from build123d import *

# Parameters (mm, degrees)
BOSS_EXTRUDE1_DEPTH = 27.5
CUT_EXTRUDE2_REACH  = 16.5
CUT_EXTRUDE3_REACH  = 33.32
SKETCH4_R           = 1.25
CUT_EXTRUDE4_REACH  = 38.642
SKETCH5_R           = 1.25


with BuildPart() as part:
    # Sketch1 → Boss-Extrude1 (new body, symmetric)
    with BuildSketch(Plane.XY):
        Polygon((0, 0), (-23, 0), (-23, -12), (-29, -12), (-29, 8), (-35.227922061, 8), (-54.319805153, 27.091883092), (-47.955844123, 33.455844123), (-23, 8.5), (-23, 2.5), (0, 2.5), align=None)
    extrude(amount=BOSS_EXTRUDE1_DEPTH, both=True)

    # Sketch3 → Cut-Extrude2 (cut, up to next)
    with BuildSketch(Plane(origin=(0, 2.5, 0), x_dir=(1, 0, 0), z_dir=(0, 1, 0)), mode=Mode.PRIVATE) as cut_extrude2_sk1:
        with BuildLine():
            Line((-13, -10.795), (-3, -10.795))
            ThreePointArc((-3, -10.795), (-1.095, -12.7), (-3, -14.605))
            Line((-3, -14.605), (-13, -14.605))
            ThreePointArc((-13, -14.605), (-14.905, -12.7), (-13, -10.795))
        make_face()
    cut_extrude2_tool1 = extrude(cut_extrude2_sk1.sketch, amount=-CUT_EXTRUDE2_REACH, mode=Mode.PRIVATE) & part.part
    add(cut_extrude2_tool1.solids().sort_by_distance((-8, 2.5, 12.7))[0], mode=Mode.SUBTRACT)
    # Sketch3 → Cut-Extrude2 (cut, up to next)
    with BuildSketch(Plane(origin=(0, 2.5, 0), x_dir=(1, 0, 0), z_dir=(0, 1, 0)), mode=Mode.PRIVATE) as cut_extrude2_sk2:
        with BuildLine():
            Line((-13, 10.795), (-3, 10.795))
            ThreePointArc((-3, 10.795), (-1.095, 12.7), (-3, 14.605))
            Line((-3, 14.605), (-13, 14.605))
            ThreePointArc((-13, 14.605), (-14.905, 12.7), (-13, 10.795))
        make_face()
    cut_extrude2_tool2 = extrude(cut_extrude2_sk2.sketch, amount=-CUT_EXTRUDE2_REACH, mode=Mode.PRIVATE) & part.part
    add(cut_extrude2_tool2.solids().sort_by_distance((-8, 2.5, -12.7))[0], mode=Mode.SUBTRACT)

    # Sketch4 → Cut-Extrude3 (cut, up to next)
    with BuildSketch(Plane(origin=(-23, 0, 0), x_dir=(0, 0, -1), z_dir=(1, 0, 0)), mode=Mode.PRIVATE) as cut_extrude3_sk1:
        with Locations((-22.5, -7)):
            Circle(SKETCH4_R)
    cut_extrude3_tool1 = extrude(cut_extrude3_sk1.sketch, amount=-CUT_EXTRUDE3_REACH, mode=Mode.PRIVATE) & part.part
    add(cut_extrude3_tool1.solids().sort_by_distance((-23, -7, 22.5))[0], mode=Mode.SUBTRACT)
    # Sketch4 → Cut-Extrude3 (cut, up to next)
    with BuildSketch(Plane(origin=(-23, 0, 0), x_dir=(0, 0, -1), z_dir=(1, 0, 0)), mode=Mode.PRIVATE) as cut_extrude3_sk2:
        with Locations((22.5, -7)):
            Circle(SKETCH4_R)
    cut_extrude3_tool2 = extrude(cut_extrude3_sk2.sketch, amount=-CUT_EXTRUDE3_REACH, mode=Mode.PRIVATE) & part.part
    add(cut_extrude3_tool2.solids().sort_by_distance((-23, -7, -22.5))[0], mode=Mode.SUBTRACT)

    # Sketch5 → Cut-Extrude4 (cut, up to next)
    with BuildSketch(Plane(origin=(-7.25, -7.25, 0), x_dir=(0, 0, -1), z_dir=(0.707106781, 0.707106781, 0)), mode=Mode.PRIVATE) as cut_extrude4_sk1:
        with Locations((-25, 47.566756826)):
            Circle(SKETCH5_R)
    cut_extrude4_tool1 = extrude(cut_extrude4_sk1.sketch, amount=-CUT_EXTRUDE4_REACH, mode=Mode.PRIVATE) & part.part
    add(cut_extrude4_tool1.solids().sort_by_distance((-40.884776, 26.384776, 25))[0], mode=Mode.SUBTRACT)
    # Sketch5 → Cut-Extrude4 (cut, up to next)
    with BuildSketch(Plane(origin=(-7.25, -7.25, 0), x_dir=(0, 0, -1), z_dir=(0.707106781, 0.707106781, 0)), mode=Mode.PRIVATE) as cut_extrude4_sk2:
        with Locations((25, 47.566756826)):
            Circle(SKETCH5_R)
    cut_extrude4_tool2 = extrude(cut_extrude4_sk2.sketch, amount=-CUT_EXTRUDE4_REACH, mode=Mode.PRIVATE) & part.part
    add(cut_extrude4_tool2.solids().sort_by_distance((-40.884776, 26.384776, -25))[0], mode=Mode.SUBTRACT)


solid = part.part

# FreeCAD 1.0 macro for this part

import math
import FreeCAD as App
import Part
import Sketcher
Q = App.Units.Quantity

doc = App.newDocument("Part")
params = doc.addObject("Spreadsheet::Sheet", "Params")
for row, (alias, value) in enumerate([
    ("sketch1_width", "23 mm"),
    ("sketch1_width2", "6 mm"),
    ("sketch1_height", "20 mm"),
    ("sketch1_height2", "12 mm"),
    ("sketch1_length", "9 mm"),
    ("pad1_length", "55 mm"),
    ("sketch2_width", "10 mm"),
    ("sketch3_width", "10 mm"),
    ("sketch4_diameter", "2.5 mm"),
    ("sketch5_diameter", "2.5 mm"),
    ("sketch6_diameter", "2.5 mm"),
    ("sketch7_diameter", "2.5 mm"),
], start=1):
    params.set(f"A{row}", alias)
    params.set(f"B{row}", "=" + value)
    params.setAlias(f"B{row}", alias)

body = doc.addObject("PartDesign::Body", "Body")

# Sketch on XY plane
sketch1 = body.newObject("Sketcher::SketchObject", "Sketch")
sketch1.AttachmentSupport = (doc.getObject("XY_Plane"), [""])
sketch1.MapMode = "FlatFace"
sketch1.addGeometry([
    Part.LineSegment(App.Vector(-23, 0, 0), App.Vector(0, 0, 0)),  # 0
    Part.LineSegment(App.Vector(0, 0, 0), App.Vector(0, 2.5, 0)),  # 1
    Part.LineSegment(App.Vector(0, 2.5, 0), App.Vector(-23, 2.5, 0)),  # 2
    Part.LineSegment(App.Vector(-23, 2.5, 0), App.Vector(-23, 8.5, 0)),  # 3
    Part.LineSegment(App.Vector(-23, 8.5, 0), App.Vector(-48, 33.5, 0)),  # 4
    Part.LineSegment(App.Vector(-48, 33.5, 0), App.Vector(-54.3, 27.1, 0)),  # 5
    Part.LineSegment(App.Vector(-54.3, 27.1, 0), App.Vector(-35.2, 8, 0)),  # 6
    Part.LineSegment(App.Vector(-35.2, 8, 0), App.Vector(-29, 8, 0)),  # 7
    Part.LineSegment(App.Vector(-29, 8, 0), App.Vector(-29, -12, 0)),  # 8
    Part.LineSegment(App.Vector(-29, -12, 0), App.Vector(-23, -12, 0)),  # 9
    Part.LineSegment(App.Vector(-23, -12, 0), App.Vector(-23, 0, 0)),  # 10
], False)
sketch1.addConstraint([
    Sketcher.Constraint("Coincident", 0, 2, 1, 1),
    Sketcher.Constraint("Coincident", 1, 2, 2, 1),
    Sketcher.Constraint("Coincident", 2, 2, 3, 1),
    Sketcher.Constraint("Coincident", 3, 2, 4, 1),
    Sketcher.Constraint("Coincident", 4, 2, 5, 1),
    Sketcher.Constraint("Coincident", 5, 2, 6, 1),
    Sketcher.Constraint("Coincident", 6, 2, 7, 1),
    Sketcher.Constraint("Coincident", 7, 2, 8, 1),
    Sketcher.Constraint("Coincident", 8, 2, 9, 1),
    Sketcher.Constraint("Coincident", 9, 2, 10, 1),
    Sketcher.Constraint("Coincident", 10, 2, 0, 1),
    Sketcher.Constraint("Horizontal", 0),
    Sketcher.Constraint("Vertical", 1),
    Sketcher.Constraint("Horizontal", 2),
    Sketcher.Constraint("Vertical", 3),
    Sketcher.Constraint("Horizontal", 7),
    Sketcher.Constraint("Vertical", 8),
    Sketcher.Constraint("Horizontal", 9),
    Sketcher.Constraint("Vertical", 10),
    Sketcher.Constraint("Coincident", 0, 2, -1, 1),
    Sketcher.Constraint("Perpendicular", 4, 5),
    Sketcher.Constraint("Perpendicular", 5, 6),
    Sketcher.Constraint("Vertical", 3, 2, 9, 2),
    Sketcher.Constraint("Equal", 9, 3),
    Sketcher.Constraint("DistanceX", 0, 1, 0, 2, 23.0),
    Sketcher.Constraint("DistanceX", 9, 1, 9, 2, 6.0),
    Sketcher.Constraint("DistanceY", 8, 2, 8, 1, 20.0),
    Sketcher.Constraint("DistanceY", 10, 1, 10, 2, 12.0),
    Sketcher.Constraint("Angle", 4, Q("135 deg")),
    Sketcher.Constraint("Distance", 5, 9.0),
    Sketcher.Constraint("Distance", 6, 27.0),
    Sketcher.Constraint("DistanceY", 1, 1, 1, 2, 2.5),
])
sketch1.setExpression("Constraints[24]", "Params.sketch1_width")
sketch1.setExpression("Constraints[25]", "Params.sketch1_width2")
sketch1.setExpression("Constraints[26]", "Params.sketch1_height")
sketch1.setExpression("Constraints[27]", "Params.sketch1_height2")
sketch1.setExpression("Constraints[29]", "Params.sketch1_length")
pad1 = body.newObject("PartDesign::Pad", "Pad")
pad1.Profile = sketch1
pad1.setExpression("Length", "Params.pad1_length")
pad1.Midplane = True

# Sketch on XZ plane
sketch2 = body.newObject("Sketcher::SketchObject", "Sketch001")
sketch2.AttachmentSupport = (doc.getObject("XZ_Plane"), [""])
sketch2.MapMode = "FlatFace"
sketch2.AttachmentOffset = App.Placement(App.Vector(0, 0, -2.5), App.Rotation())
sketch2.addGeometry([
    Part.LineSegment(App.Vector(-3, 10.8, 0), App.Vector(-13, 10.8, 0)),
    Part.ArcOfCircle(Part.Circle(App.Vector(-13, 12.7, 0), App.Vector(0, 0, 1), 1.9), math.radians(90), math.radians(270)),
    Part.LineSegment(App.Vector(-13, 14.6, 0), App.Vector(-3, 14.6, 0)),
    Part.ArcOfCircle(Part.Circle(App.Vector(-3, 12.7, 0), App.Vector(0, 0, 1), 1.9), math.radians(-90), math.radians(90)),
], False)
sketch2.addConstraint([
    Sketcher.Constraint("Tangent", 0, 2, 1, 2),
    Sketcher.Constraint("Tangent", 1, 1, 2, 1),
    Sketcher.Constraint("Tangent", 2, 2, 3, 2),
    Sketcher.Constraint("Tangent", 3, 1, 0, 1),
    Sketcher.Constraint("Horizontal", 0),
    Sketcher.Constraint("Horizontal", 2),
    Sketcher.Constraint("DistanceX", 0, 2, 0, 1, 10.0),
    Sketcher.Constraint("DistanceX", 1, 3, -1, 1, 13.0),
    Sketcher.Constraint("Radius", 1, 1.905),
    Sketcher.Constraint("DistanceY", -1, 1, 1, 3, 12.7),
])
sketch2.setExpression("Constraints[6]", "Params.sketch2_width")
pocket1 = body.newObject("PartDesign::Pocket", "Pocket")
pocket1.Profile = sketch2
pocket1.Type = "UpToFirst"
pocket1.Reversed = True

# Sketch on XZ plane
sketch3 = body.newObject("Sketcher::SketchObject", "Sketch002")
sketch3.AttachmentSupport = (doc.getObject("XZ_Plane"), [""])
sketch3.MapMode = "FlatFace"
sketch3.AttachmentOffset = App.Placement(App.Vector(0, 0, -2.5), App.Rotation())
sketch3.addGeometry([
    Part.LineSegment(App.Vector(-13, -10.8, 0), App.Vector(-3, -10.8, 0)),
    Part.ArcOfCircle(Part.Circle(App.Vector(-3, -12.7, 0), App.Vector(0, 0, 1), 1.9), math.radians(-90), math.radians(90)),
    Part.LineSegment(App.Vector(-3, -14.6, 0), App.Vector(-13, -14.6, 0)),
    Part.ArcOfCircle(Part.Circle(App.Vector(-13, -12.7, 0), App.Vector(0, 0, 1), 1.9), math.radians(90), math.radians(270)),
], False)
sketch3.addConstraint([
    Sketcher.Constraint("Tangent", 0, 2, 1, 2),
    Sketcher.Constraint("Tangent", 1, 1, 2, 1),
    Sketcher.Constraint("Tangent", 2, 2, 3, 2),
    Sketcher.Constraint("Tangent", 3, 1, 0, 1),
    Sketcher.Constraint("Horizontal", 0),
    Sketcher.Constraint("Horizontal", 2),
    Sketcher.Constraint("DistanceX", 0, 1, 0, 2, 10.0),
    Sketcher.Constraint("DistanceX", 1, 3, -1, 1, 3.0),
    Sketcher.Constraint("Radius", 1, 1.905),
    Sketcher.Constraint("DistanceY", 1, 3, -1, 1, 12.7),
])
sketch3.setExpression("Constraints[6]", "Params.sketch3_width")
pocket2 = body.newObject("PartDesign::Pocket", "Pocket001")
pocket2.Profile = sketch3
pocket2.Type = "UpToFirst"
pocket2.Reversed = True

# Sketch on YZ plane
sketch4 = body.newObject("Sketcher::SketchObject", "Sketch003")
sketch4.AttachmentSupport = (doc.getObject("YZ_Plane"), [""])
sketch4.MapMode = "FlatFace"
sketch4.AttachmentOffset = App.Placement(App.Vector(0, 0, -23), App.Rotation())
sketch4.addGeometry(Part.Circle(App.Vector(-7, 22.5, 0), App.Vector(0, 0, 1), 1.2), False)
sketch4.addConstraint([
    Sketcher.Constraint("Diameter", 0, 2.5),
    Sketcher.Constraint("DistanceX", 0, 3, -1, 1, 7.0),
    Sketcher.Constraint("DistanceY", -1, 1, 0, 3, 22.5),
])
sketch4.setExpression("Constraints[0]", "Params.sketch4_diameter")
pocket3 = body.newObject("PartDesign::Pocket", "Pocket002")
pocket3.Profile = sketch4
pocket3.Type = "UpToFirst"

# Sketch on YZ plane
sketch5 = body.newObject("Sketcher::SketchObject", "Sketch004")
sketch5.AttachmentSupport = (doc.getObject("YZ_Plane"), [""])
sketch5.MapMode = "FlatFace"
sketch5.AttachmentOffset = App.Placement(App.Vector(0, 0, -23), App.Rotation())
sketch5.addGeometry(Part.Circle(App.Vector(-7, -22.5, 0), App.Vector(0, 0, 1), 1.2), False)
sketch5.addConstraint([
    Sketcher.Constraint("Diameter", 0, 2.5),
    Sketcher.Constraint("DistanceX", 0, 3, -1, 1, 7.0),
    Sketcher.Constraint("DistanceY", 0, 3, -1, 1, 22.5),
])
sketch5.setExpression("Constraints[0]", "Params.sketch5_diameter")
pocket4 = body.newObject("PartDesign::Pocket", "Pocket003")
pocket4.Profile = sketch5
pocket4.Type = "UpToFirst"

# Sketch on an angled plane
sketch6 = body.newObject("Sketcher::SketchObject", "Sketch005")
sketch6.Placement = App.Placement(App.Vector(-7.25, -7.25, 0), App.Rotation(App.Vector(0, 0, -1), App.Vector(-0.707106781, 0.707106781, 0), App.Vector(0.707106781, 0.707106781, 0), "ZXY"))
sketch6.addGeometry(Part.Circle(App.Vector(-25, 47.6, 0), App.Vector(0, 0, 1), 1.2), False)
sketch6.addConstraint([
    Sketcher.Constraint("Diameter", 0, 2.5),
    Sketcher.Constraint("DistanceX", 0, 3, -1, 1, 25.0),
    Sketcher.Constraint("DistanceY", -1, 1, 0, 3, 47.566757),
])
sketch6.setExpression("Constraints[0]", "Params.sketch6_diameter")
pocket5 = body.newObject("PartDesign::Pocket", "Pocket004")
pocket5.Profile = sketch6
pocket5.Type = "UpToFirst"

# Sketch on an angled plane
sketch7 = body.newObject("Sketcher::SketchObject", "Sketch006")
sketch7.Placement = App.Placement(App.Vector(-7.25, -7.25, 0), App.Rotation(App.Vector(0, 0, -1), App.Vector(-0.707106781, 0.707106781, 0), App.Vector(0.707106781, 0.707106781, 0), "ZXY"))
sketch7.addGeometry(Part.Circle(App.Vector(25, 47.6, 0), App.Vector(0, 0, 1), 1.2), False)
sketch7.addConstraint([
    Sketcher.Constraint("Diameter", 0, 2.5),
    Sketcher.Constraint("DistanceX", -1, 1, 0, 3, 25.0),
    Sketcher.Constraint("DistanceY", -1, 1, 0, 3, 47.566757),
])
sketch7.setExpression("Constraints[0]", "Params.sketch7_diameter")
pocket6 = body.newObject("PartDesign::Pocket", "Pocket005")
pocket6.Profile = sketch7
pocket6.Type = "UpToFirst"

doc.recompute()
